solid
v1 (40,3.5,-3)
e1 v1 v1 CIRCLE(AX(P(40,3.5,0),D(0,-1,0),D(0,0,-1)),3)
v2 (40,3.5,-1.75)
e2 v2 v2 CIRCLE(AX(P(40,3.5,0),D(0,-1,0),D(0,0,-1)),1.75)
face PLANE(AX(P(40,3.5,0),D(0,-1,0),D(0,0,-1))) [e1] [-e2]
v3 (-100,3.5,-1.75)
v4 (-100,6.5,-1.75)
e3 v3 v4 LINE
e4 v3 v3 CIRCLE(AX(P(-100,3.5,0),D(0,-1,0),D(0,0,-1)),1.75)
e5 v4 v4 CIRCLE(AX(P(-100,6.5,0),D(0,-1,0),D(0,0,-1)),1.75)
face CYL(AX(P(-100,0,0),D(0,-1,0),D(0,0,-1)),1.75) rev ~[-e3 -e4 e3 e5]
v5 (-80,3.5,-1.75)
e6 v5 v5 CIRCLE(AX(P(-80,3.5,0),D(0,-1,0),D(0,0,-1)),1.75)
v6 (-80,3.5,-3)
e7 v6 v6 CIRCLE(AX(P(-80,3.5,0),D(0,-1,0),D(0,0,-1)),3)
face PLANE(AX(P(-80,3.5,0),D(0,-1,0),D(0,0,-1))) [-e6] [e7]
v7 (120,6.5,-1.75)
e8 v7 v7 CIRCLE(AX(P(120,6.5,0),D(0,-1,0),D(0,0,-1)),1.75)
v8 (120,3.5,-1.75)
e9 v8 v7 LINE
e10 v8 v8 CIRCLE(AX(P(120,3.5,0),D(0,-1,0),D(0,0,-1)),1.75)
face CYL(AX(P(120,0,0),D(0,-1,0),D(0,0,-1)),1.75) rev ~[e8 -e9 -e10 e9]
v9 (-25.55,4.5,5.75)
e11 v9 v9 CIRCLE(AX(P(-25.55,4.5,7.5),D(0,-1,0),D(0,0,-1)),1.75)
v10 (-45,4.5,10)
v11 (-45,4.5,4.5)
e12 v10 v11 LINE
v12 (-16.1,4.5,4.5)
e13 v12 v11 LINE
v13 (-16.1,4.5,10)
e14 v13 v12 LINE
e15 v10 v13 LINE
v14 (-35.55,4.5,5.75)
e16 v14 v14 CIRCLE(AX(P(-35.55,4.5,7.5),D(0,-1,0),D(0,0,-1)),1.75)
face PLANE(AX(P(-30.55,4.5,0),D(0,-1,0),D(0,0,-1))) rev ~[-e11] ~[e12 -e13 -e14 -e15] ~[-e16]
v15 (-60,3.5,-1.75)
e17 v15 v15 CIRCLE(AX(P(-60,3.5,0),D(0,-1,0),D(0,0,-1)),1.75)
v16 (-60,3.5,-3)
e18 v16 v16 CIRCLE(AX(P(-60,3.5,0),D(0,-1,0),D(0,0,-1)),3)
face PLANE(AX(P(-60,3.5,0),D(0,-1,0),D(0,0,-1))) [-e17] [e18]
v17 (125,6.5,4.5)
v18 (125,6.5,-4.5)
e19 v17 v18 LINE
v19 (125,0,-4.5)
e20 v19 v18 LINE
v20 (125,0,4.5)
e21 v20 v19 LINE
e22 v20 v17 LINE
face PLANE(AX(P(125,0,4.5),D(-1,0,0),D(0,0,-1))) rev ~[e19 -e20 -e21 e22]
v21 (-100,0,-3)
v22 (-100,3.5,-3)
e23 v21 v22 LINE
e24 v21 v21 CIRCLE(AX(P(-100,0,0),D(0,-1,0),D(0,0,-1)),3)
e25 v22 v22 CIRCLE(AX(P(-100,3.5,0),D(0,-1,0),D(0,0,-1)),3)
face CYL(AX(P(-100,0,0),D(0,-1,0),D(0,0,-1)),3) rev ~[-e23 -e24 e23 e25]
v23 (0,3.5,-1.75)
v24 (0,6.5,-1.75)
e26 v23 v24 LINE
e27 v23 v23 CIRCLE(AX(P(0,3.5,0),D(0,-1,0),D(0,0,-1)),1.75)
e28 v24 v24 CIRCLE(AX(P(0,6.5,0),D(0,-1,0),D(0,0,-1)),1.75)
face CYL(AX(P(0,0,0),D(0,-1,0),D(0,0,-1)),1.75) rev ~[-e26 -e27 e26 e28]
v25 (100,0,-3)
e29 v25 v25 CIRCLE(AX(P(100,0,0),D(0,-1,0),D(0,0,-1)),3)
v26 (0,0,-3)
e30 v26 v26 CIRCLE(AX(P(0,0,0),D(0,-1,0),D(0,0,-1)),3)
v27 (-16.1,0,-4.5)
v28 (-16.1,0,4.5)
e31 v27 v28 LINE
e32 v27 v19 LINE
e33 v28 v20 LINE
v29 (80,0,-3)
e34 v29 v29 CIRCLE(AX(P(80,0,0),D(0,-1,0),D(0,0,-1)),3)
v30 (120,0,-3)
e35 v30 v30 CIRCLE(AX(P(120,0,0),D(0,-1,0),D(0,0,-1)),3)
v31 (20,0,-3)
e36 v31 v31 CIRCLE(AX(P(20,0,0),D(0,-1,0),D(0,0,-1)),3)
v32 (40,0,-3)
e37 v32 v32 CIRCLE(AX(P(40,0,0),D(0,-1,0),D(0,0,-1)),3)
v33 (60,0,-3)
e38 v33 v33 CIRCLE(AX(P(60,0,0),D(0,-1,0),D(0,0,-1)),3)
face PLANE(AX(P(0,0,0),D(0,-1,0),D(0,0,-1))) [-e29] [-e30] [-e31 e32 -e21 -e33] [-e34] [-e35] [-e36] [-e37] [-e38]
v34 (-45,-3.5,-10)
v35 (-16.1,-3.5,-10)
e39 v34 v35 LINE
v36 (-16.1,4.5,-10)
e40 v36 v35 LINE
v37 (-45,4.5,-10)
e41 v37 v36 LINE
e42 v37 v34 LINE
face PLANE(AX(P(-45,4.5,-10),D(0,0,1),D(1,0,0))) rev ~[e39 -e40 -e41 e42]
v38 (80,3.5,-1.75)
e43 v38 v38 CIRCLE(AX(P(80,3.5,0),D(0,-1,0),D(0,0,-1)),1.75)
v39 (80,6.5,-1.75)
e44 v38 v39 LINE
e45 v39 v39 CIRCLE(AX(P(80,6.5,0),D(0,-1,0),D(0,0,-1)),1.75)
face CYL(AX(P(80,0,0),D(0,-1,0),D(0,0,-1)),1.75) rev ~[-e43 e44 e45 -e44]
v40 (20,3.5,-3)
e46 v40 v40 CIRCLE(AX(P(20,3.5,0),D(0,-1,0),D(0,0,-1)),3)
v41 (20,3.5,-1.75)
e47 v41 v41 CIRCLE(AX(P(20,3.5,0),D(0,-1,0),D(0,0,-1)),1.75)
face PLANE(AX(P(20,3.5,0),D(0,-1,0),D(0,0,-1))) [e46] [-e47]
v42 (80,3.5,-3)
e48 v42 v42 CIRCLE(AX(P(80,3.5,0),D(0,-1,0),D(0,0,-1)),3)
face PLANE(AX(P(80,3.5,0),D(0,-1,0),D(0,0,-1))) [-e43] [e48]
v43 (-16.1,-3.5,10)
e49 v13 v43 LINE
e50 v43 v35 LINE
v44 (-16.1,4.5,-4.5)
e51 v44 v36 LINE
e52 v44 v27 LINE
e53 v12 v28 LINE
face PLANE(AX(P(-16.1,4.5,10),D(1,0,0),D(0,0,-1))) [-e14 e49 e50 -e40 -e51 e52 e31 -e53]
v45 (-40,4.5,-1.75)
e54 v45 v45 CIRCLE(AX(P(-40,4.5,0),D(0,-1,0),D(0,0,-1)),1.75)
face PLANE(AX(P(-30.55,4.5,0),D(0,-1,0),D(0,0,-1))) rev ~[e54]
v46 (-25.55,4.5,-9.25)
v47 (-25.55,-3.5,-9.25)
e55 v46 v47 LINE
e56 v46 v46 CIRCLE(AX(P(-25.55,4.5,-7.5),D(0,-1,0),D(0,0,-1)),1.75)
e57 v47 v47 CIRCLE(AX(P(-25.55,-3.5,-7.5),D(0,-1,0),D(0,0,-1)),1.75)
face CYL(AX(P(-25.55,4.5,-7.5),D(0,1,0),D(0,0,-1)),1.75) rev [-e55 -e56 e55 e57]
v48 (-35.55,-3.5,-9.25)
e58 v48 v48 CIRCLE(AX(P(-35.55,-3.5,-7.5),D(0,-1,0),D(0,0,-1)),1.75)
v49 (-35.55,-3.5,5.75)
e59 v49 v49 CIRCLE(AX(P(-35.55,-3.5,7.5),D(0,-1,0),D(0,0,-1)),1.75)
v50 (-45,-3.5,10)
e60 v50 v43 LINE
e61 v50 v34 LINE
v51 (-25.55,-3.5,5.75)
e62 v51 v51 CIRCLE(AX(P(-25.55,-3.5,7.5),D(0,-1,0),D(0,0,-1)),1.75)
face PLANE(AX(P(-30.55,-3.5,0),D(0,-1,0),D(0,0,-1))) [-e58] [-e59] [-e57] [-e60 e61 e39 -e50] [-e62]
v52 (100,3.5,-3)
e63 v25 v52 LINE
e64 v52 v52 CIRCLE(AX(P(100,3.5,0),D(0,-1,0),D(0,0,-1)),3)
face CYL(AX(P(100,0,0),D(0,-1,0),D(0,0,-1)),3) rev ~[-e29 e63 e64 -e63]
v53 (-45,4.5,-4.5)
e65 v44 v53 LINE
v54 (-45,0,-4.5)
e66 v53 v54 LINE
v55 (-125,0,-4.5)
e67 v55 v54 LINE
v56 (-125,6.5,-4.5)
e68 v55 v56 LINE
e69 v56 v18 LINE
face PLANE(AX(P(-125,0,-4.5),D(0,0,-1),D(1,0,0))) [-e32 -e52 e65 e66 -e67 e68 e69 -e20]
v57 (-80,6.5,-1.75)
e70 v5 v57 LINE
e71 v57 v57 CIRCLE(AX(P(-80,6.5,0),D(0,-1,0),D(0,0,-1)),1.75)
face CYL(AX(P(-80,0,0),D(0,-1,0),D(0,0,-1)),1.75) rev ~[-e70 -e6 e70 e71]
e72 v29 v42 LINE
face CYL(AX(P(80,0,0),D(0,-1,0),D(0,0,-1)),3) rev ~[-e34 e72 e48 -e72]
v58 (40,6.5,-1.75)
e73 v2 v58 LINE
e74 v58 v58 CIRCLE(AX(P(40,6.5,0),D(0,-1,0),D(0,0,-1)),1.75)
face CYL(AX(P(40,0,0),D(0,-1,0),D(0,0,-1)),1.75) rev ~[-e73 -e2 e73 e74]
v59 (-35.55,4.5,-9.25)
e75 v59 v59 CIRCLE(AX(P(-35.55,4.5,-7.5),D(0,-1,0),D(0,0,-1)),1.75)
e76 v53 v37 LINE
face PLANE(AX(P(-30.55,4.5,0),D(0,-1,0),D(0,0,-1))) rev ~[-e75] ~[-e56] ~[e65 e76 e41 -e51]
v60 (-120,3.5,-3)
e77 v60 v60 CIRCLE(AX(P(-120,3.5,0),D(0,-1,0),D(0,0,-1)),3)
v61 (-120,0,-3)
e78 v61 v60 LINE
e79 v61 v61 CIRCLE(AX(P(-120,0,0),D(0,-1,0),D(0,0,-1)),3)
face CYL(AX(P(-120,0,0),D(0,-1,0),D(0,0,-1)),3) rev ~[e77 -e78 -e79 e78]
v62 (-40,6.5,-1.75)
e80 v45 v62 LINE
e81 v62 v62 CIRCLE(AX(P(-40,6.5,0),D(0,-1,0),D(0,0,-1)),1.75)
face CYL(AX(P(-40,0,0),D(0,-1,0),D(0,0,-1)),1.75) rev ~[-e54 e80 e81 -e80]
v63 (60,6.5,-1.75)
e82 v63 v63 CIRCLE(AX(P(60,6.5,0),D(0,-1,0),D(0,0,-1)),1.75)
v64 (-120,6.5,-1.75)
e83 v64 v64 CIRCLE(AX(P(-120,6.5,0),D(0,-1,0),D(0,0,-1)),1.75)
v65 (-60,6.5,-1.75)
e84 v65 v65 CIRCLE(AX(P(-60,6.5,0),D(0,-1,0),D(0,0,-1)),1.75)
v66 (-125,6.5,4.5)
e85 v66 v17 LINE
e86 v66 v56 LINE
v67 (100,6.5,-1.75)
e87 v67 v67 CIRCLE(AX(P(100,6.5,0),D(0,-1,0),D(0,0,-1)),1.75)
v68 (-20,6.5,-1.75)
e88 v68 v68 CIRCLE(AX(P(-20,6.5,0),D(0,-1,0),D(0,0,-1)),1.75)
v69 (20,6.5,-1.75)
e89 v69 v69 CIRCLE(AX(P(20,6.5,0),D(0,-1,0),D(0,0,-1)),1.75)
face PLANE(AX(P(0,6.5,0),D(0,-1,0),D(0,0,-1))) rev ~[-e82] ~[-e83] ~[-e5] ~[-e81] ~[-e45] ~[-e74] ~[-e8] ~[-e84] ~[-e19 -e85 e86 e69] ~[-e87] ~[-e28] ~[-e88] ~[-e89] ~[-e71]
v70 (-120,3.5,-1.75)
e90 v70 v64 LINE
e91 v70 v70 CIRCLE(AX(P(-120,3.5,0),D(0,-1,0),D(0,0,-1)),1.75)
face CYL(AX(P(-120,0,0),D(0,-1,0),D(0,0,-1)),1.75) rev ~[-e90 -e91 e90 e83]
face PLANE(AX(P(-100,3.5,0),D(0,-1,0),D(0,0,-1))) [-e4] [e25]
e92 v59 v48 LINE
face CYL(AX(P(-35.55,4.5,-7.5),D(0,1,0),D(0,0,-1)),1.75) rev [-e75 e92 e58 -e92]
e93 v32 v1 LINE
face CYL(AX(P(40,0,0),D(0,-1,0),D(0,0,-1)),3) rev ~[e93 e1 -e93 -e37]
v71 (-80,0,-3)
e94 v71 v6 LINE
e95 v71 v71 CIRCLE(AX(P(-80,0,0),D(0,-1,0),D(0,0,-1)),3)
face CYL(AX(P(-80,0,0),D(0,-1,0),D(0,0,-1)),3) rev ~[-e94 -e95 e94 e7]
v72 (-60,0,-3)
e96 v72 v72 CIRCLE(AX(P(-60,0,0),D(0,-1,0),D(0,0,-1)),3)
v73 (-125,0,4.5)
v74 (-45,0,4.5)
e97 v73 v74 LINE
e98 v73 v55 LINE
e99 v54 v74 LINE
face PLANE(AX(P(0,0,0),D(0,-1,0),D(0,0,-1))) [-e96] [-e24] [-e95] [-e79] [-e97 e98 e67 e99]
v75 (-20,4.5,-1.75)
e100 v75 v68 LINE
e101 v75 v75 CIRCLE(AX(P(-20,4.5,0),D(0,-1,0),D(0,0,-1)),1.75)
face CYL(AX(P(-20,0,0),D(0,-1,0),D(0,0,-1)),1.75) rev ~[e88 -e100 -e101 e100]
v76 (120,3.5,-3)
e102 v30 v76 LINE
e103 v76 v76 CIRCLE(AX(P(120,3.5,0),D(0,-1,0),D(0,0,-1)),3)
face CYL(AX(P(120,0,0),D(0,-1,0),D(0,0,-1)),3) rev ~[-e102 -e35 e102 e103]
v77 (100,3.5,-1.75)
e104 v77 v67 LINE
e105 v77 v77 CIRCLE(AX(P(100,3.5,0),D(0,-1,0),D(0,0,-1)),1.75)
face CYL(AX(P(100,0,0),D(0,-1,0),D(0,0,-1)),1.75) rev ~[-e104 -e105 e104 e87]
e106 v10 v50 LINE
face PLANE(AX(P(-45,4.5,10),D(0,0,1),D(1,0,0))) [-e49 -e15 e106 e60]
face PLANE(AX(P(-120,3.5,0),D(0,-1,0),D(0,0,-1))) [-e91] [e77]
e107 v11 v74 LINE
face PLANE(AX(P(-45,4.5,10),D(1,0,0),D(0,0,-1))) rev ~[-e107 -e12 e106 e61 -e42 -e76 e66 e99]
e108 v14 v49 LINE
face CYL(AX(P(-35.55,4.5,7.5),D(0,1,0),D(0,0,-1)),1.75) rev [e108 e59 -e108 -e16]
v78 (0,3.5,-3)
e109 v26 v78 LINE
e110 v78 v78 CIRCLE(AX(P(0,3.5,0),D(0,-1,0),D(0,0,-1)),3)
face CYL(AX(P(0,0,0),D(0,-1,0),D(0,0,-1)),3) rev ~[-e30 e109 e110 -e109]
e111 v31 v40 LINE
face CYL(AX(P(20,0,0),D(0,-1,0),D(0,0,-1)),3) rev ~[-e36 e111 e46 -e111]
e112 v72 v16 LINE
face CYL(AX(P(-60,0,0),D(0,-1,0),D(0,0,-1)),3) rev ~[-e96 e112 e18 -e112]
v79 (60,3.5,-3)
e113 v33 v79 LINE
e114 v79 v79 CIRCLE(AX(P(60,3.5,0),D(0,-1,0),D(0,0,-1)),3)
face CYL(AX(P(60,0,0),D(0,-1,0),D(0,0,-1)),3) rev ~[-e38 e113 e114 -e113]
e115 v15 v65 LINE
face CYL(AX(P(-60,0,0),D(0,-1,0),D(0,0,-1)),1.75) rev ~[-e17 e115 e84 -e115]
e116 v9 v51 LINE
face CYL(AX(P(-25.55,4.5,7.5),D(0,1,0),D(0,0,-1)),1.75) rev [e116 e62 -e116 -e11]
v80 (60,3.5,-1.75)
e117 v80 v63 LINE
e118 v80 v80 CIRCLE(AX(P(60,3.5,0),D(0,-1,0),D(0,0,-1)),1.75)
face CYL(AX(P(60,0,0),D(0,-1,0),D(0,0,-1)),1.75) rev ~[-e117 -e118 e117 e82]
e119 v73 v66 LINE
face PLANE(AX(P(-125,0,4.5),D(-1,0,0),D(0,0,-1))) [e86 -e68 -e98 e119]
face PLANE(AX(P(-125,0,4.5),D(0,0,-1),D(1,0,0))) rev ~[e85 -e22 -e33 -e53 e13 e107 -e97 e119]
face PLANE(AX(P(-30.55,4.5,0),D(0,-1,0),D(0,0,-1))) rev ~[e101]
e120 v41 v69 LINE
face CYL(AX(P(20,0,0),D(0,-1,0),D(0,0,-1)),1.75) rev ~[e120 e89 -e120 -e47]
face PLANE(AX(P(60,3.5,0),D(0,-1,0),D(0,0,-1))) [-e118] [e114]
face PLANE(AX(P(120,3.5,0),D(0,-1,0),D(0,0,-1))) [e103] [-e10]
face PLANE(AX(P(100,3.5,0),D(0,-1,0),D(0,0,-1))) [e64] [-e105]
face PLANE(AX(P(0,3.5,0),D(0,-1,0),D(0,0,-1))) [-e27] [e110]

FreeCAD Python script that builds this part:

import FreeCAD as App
import Part
import Sketcher
from FreeCAD import Vector


def add_polygon(sketch, points):
    """Adds a closed chain of lines whose ends are joined by coincident constraints."""
    first, n = sketch.GeometryCount, len(points)
    for a, b in zip(points, points[1:] + points[:1]):
        sketch.addGeometry(Part.LineSegment(App.Vector(*a, 0), App.Vector(*b, 0)), False)
    for i in range(n):
        sketch.addConstraint(Sketcher.Constraint("Coincident", first + i, 2, first + (i + 1) % n, 1))

doc = App.newDocument("Part")
body = doc.addObject("PartDesign::Body", "Body")

# Sketch on XY plane
sketch1 = body.newObject("Sketcher::SketchObject", "Sketch")
sketch1.AttachmentSupport = (doc.getObject("XY_Plane"), [""])
sketch1.MapMode = "FlatFace"
add_polygon(sketch1, [(-4, 250), (-4, 0), (4, 0), (4, 250)])  # lines 0-3
sketch1.addConstraint([
    Sketcher.Constraint("Vertical", 0),
    Sketcher.Constraint("Horizontal", 1),
    Sketcher.Constraint("Vertical", 2),
    Sketcher.Constraint("Horizontal", 3),
    Sketcher.Constraint("Symmetric", 0, 2, 1, 2, -1, 1),
    Sketcher.Constraint("DistanceX", 1, 1, 1, 2, 9.0),
    Sketcher.Constraint("DistanceY", 0, 2, 0, 1, 250.0),
])
pad1 = body.newObject("PartDesign::Pad", "Pad")
pad1.Profile = sketch1
pad1.Length = 6.5
pad1.Reversed = True

# Sketch on XY plane
sketch2 = body.newObject("Sketcher::SketchObject", "Sketch001")
sketch2.AttachmentSupport = (doc.getObject("XY_Plane"), [""])
sketch2.MapMode = "FlatFace"
sketch2.addGeometry(Part.Circle(Vector(0, 5, 0), Vector(0, 0, 1), 1.8), False)
sketch2.addConstraint([
    Sketcher.Constraint("PointOnObject", 0, 3, -2),
    Sketcher.Constraint("Diameter", 0, 3.5),
    Sketcher.Constraint("DistanceY", -1, 1, 0, 3, 5.0),
])
pocket1 = body.newObject("PartDesign::Pocket", "Pocket")
pocket1.Profile = sketch2
pocket1.Length = 6.5
doc.recompute()

linearpattern = body.newObject("PartDesign::LinearPattern", "LinearPattern")
linearpattern.Originals = [pocket1]
linearpattern.Direction = (doc.getObject("Y_Axis"), [""])
linearpattern.Mode = "offset"
linearpattern.Offset = 20
linearpattern.Occurrences = 13
body.Tip = linearpattern

# Sketch on XY plane
sketch3 = body.newObject("Sketcher::SketchObject", "Sketch002")
sketch3.AttachmentSupport = (doc.getObject("XY_Plane"), [""])
sketch3.MapMode = "FlatFace"
sketch3.addGeometry(Part.Circle(Vector(0, 5, 0), Vector(0, 0, 1), 3), False)
sketch3.addConstraint([
    Sketcher.Constraint("PointOnObject", 0, 3, -2),
    Sketcher.Constraint("Diameter", 0, 6.0),
    Sketcher.Constraint("DistanceY", -1, 1, 0, 3, 5.0),
])
pocket2 = body.newObject("PartDesign::Pocket", "Pocket001")
pocket2.Profile = sketch3
pocket2.Length = 3.5
doc.recompute()

linearpattern2 = body.newObject("PartDesign::LinearPattern", "LinearPattern001")
linearpattern2.Originals = [pocket2]
linearpattern2.Direction = (doc.getObject("Y_Axis"), [""])
linearpattern2.Mode = "offset"
linearpattern2.Offset = 20
linearpattern2.Occurrences = 13
body.Tip = linearpattern2

# Sketch on XY plane
sketch4 = body.newObject("Sketcher::SketchObject", "Sketch003")
sketch4.AttachmentSupport = (doc.getObject("XY_Plane"), [""])
sketch4.MapMode = "FlatFace"
sketch4.AttachmentOffset = App.Placement(Vector(0, 0, -4.5), App.Rotation())
add_polygon(sketch4, [(-10, 108.9), (-10, 80), (10, 80), (10, 108.9)])  # lines 0-3
sketch4.addGeometry(Part.Circle(Vector(-7.5, 89.5, 0), Vector(0, 0, 1), 1.8), False)  # 4
sketch4.addGeometry(Part.Circle(Vector(7.5, 89.5, 0), Vector(0, 0, 1), 1.8), False)  # 5
sketch4.addGeometry(Part.Circle(Vector(-7.5, 99.5, 0), Vector(0, 0, 1), 1.8), False)  # 6
sketch4.addGeometry(Part.Circle(Vector(7.5, 99.5, 0), Vector(0, 0, 1), 1.8), False)  # 7
sketch4.addConstraint([
    Sketcher.Constraint("Vertical", 0),
    Sketcher.Constraint("Horizontal", 1),
    Sketcher.Constraint("Vertical", 2),
    Sketcher.Constraint("Horizontal", 3),
    Sketcher.Constraint("Equal", 4, 5),
    Sketcher.Constraint("Equal", 5, 6),
    Sketcher.Constraint("Equal", 6, 7),
    Sketcher.Constraint("Symmetric", 4, 3, 5, 3, -2),
    Sketcher.Constraint("Symmetric", 6, 3, 7, 3, -2),
    Sketcher.Constraint("Vertical", 4, 3, 6, 3),
    Sketcher.Constraint("Diameter", 4, 3.5),
    Sketcher.Constraint("DistanceX", 1, 1, 1, 2, 20.0),
    Sketcher.Constraint("DistanceY", 0, 2, 0, 1, 28.9),
    Sketcher.Constraint("DistanceX", 0, 2, -1, 1, 10.0),
    Sketcher.Constraint("DistanceY", -1, 1, 0, 2, 80.0),
    Sketcher.Constraint("DistanceX", 4, 3, 5, 3, 15.0),
    Sketcher.Constraint("DistanceY", 4, 3, 6, 3, 10.0),
    Sketcher.Constraint("DistanceY", -1, 1, 4, 3, 89.45),
])
pad2 = body.newObject("PartDesign::Pad", "Pad001")
pad2.Profile = sketch4
pad2.Length = 8
body2 = doc.addObject("PartDesign::Body", "Body001")
doc.recompute()

body.Placement = App.Placement(Vector(0, 0, 0), App.Rotation(Vector(0, 1, 0), 90))
boolean = body2.newObject("PartDesign::Boolean", "Boolean")
boolean.Type = "Fuse"
boolean.addObjects([body])
body3 = doc.addObject("PartDesign::Body", "Body002")
doc.recompute()

body2.Placement = App.Placement(Vector(-125, 0, 0), App.Rotation(Vector(0, 0, 1), 270))
boolean2 = body3.newObject("PartDesign::Boolean", "Boolean001")
boolean2.Type = "Fuse"
boolean2.addObjects([body2])

doc.recompute()
